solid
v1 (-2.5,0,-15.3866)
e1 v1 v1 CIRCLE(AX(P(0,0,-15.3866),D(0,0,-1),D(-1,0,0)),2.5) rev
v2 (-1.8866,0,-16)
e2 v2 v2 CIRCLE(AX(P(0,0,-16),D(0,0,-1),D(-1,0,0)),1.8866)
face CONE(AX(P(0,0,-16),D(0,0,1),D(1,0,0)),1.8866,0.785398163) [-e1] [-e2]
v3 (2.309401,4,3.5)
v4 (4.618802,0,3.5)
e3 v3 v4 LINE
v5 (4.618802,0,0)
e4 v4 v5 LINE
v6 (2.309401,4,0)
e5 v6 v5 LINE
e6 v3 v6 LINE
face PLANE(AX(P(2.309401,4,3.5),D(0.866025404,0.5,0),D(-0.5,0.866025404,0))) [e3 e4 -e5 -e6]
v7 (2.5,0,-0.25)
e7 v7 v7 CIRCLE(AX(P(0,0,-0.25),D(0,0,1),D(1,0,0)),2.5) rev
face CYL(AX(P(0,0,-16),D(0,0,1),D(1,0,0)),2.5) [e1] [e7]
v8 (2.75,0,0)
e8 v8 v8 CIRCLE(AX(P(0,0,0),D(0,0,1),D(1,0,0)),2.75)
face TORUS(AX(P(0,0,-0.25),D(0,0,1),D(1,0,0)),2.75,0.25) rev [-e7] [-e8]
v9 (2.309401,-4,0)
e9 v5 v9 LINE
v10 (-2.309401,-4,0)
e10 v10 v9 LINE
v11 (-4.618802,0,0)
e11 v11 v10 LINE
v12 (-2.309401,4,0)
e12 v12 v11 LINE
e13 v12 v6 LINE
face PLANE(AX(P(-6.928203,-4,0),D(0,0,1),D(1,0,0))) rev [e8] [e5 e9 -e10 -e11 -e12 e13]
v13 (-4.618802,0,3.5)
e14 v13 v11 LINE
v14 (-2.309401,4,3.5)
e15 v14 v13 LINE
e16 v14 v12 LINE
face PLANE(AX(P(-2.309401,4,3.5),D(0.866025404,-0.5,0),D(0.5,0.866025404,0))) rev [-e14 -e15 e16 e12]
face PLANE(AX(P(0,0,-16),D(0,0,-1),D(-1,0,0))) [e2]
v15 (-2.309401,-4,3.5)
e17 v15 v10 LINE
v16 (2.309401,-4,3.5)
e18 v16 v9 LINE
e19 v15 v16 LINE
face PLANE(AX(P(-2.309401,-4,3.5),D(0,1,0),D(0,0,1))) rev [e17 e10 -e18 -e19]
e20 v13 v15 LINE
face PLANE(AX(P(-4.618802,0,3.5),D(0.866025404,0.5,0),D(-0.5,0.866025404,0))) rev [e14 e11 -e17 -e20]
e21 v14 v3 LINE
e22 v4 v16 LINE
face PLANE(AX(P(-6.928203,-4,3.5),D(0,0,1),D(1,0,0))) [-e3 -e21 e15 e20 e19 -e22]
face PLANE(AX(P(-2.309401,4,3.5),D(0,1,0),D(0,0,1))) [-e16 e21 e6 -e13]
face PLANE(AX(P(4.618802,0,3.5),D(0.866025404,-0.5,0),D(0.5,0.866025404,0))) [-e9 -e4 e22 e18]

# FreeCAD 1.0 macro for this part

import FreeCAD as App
import Part
import Sketcher

V = App.Vector
Q = App.Units.Quantity


def edges_at(feature, points):
    """Names of the edges that pass closest to the given points."""
    edges = feature.Shape.Edges
    near = lambda p: min(range(len(edges)), key=lambda i: edges[i].distToShape(Part.Vertex(*p))[0])
    return sorted({f"Edge{near(p) + 1}" for p in points})

doc = App.newDocument("Part")
body = doc.addObject("PartDesign::Body", "Body")

# Sketch on XY plane
sketch1 = doc.addObject("Sketcher::SketchObject", "Sketch")
body.addObject(sketch1)
sketch1.AttachmentSupport = (doc.XY_Plane, [""])
sketch1.MapMode = "FlatFace"
sketch1.addGeometry(Part.LineSegment(V(2.3, 4, 0), V(-2.3, 4, 0)), False)
sketch1.addGeometry(Part.LineSegment(V(-2.3, 4, 0), V(-4.6, 0, 0)), False)
sketch1.addGeometry(Part.LineSegment(V(-4.6, 0, 0), V(-2.3, -4, 0)), False)
sketch1.addGeometry(Part.LineSegment(V(-2.3, -4, 0), V(2.3, -4, 0)), False)
sketch1.addGeometry(Part.LineSegment(V(2.3, -4, 0), V(4.6, 0, 0)), False)
sketch1.addGeometry(Part.LineSegment(V(4.6, 0, 0), V(2.3, 4, 0)), False)
sketch1.addConstraint(Sketcher.Constraint("Coincident", 0, 2, 1, 1))
sketch1.addConstraint(Sketcher.Constraint("Coincident", 1, 2, 2, 1))
sketch1.addConstraint(Sketcher.Constraint("Coincident", 2, 2, 3, 1))
sketch1.addConstraint(Sketcher.Constraint("Coincident", 3, 2, 4, 1))
sketch1.addConstraint(Sketcher.Constraint("Coincident", 4, 2, 5, 1))
sketch1.addConstraint(Sketcher.Constraint("Coincident", 5, 2, 0, 1))
sketch1.addConstraint(Sketcher.Constraint("Horizontal", 0))
sketch1.addConstraint(Sketcher.Constraint("Horizontal", 3))
sketch1.addConstraint(Sketcher.Constraint("Symmetric", 0, 2, 3, 2, -1, 1))
sketch1.addConstraint(Sketcher.Constraint("Symmetric", 1, 2, 4, 2, -1, 1))
sketch1.addConstraint(Sketcher.Constraint("PointOnObject", 1, 2, -1))
sketch1.addConstraint(Sketcher.Constraint("Parallel", 2, 5))
sketch1.addConstraint(Sketcher.Constraint("Vertical", 0, 2, 2, 2))
sketch1.addConstraint(Sketcher.Constraint("Angle", 1, Q("-120 deg")))
sketch1.addConstraint(Sketcher.Constraint("DistanceY", -1, 1, 0, 2, 4.0))
sketch1.addConstraint(Sketcher.Constraint("DistanceX", 0, 2, -1, 1, 2.309401))
pad1 = doc.addObject("PartDesign::Pad", "Pad")
body.addObject(pad1)
pad1.Profile = sketch1
pad1.Length = 3.5

# Sketch on XY plane
sketch2 = doc.addObject("Sketcher::SketchObject", "Sketch001")
body.addObject(sketch2)
sketch2.AttachmentSupport = (doc.XY_Plane, [""])
sketch2.MapMode = "FlatFace"
sketch2.addGeometry(Part.Circle(V(0, 0, 0), V(0, 0, 1), 2.5), False)
sketch2.addConstraint(Sketcher.Constraint("Coincident", 0, 3, -1, 1))
sketch2.addConstraint(Sketcher.Constraint("Diameter", 0, 5.0))
pad2 = doc.addObject("PartDesign::Pad", "Pad001")
body.addObject(pad2)
pad2.Profile = sketch2
pad2.Length = 16
pad2.Reversed = True
doc.recompute()

chamfer = doc.addObject("PartDesign::Chamfer", "Chamfer")
body.addObject(chamfer)
chamfer.Base = (pad2, edges_at(pad2, [(-2.5, 0, -16)]))
chamfer.Size = 0.6134
doc.recompute()

fillet = doc.addObject("PartDesign::Fillet", "Fillet")
body.addObject(fillet)
fillet.Base = (chamfer, edges_at(chamfer, [(-2.5, 0, 0)]))
fillet.Radius = 0.25

doc.recompute()
